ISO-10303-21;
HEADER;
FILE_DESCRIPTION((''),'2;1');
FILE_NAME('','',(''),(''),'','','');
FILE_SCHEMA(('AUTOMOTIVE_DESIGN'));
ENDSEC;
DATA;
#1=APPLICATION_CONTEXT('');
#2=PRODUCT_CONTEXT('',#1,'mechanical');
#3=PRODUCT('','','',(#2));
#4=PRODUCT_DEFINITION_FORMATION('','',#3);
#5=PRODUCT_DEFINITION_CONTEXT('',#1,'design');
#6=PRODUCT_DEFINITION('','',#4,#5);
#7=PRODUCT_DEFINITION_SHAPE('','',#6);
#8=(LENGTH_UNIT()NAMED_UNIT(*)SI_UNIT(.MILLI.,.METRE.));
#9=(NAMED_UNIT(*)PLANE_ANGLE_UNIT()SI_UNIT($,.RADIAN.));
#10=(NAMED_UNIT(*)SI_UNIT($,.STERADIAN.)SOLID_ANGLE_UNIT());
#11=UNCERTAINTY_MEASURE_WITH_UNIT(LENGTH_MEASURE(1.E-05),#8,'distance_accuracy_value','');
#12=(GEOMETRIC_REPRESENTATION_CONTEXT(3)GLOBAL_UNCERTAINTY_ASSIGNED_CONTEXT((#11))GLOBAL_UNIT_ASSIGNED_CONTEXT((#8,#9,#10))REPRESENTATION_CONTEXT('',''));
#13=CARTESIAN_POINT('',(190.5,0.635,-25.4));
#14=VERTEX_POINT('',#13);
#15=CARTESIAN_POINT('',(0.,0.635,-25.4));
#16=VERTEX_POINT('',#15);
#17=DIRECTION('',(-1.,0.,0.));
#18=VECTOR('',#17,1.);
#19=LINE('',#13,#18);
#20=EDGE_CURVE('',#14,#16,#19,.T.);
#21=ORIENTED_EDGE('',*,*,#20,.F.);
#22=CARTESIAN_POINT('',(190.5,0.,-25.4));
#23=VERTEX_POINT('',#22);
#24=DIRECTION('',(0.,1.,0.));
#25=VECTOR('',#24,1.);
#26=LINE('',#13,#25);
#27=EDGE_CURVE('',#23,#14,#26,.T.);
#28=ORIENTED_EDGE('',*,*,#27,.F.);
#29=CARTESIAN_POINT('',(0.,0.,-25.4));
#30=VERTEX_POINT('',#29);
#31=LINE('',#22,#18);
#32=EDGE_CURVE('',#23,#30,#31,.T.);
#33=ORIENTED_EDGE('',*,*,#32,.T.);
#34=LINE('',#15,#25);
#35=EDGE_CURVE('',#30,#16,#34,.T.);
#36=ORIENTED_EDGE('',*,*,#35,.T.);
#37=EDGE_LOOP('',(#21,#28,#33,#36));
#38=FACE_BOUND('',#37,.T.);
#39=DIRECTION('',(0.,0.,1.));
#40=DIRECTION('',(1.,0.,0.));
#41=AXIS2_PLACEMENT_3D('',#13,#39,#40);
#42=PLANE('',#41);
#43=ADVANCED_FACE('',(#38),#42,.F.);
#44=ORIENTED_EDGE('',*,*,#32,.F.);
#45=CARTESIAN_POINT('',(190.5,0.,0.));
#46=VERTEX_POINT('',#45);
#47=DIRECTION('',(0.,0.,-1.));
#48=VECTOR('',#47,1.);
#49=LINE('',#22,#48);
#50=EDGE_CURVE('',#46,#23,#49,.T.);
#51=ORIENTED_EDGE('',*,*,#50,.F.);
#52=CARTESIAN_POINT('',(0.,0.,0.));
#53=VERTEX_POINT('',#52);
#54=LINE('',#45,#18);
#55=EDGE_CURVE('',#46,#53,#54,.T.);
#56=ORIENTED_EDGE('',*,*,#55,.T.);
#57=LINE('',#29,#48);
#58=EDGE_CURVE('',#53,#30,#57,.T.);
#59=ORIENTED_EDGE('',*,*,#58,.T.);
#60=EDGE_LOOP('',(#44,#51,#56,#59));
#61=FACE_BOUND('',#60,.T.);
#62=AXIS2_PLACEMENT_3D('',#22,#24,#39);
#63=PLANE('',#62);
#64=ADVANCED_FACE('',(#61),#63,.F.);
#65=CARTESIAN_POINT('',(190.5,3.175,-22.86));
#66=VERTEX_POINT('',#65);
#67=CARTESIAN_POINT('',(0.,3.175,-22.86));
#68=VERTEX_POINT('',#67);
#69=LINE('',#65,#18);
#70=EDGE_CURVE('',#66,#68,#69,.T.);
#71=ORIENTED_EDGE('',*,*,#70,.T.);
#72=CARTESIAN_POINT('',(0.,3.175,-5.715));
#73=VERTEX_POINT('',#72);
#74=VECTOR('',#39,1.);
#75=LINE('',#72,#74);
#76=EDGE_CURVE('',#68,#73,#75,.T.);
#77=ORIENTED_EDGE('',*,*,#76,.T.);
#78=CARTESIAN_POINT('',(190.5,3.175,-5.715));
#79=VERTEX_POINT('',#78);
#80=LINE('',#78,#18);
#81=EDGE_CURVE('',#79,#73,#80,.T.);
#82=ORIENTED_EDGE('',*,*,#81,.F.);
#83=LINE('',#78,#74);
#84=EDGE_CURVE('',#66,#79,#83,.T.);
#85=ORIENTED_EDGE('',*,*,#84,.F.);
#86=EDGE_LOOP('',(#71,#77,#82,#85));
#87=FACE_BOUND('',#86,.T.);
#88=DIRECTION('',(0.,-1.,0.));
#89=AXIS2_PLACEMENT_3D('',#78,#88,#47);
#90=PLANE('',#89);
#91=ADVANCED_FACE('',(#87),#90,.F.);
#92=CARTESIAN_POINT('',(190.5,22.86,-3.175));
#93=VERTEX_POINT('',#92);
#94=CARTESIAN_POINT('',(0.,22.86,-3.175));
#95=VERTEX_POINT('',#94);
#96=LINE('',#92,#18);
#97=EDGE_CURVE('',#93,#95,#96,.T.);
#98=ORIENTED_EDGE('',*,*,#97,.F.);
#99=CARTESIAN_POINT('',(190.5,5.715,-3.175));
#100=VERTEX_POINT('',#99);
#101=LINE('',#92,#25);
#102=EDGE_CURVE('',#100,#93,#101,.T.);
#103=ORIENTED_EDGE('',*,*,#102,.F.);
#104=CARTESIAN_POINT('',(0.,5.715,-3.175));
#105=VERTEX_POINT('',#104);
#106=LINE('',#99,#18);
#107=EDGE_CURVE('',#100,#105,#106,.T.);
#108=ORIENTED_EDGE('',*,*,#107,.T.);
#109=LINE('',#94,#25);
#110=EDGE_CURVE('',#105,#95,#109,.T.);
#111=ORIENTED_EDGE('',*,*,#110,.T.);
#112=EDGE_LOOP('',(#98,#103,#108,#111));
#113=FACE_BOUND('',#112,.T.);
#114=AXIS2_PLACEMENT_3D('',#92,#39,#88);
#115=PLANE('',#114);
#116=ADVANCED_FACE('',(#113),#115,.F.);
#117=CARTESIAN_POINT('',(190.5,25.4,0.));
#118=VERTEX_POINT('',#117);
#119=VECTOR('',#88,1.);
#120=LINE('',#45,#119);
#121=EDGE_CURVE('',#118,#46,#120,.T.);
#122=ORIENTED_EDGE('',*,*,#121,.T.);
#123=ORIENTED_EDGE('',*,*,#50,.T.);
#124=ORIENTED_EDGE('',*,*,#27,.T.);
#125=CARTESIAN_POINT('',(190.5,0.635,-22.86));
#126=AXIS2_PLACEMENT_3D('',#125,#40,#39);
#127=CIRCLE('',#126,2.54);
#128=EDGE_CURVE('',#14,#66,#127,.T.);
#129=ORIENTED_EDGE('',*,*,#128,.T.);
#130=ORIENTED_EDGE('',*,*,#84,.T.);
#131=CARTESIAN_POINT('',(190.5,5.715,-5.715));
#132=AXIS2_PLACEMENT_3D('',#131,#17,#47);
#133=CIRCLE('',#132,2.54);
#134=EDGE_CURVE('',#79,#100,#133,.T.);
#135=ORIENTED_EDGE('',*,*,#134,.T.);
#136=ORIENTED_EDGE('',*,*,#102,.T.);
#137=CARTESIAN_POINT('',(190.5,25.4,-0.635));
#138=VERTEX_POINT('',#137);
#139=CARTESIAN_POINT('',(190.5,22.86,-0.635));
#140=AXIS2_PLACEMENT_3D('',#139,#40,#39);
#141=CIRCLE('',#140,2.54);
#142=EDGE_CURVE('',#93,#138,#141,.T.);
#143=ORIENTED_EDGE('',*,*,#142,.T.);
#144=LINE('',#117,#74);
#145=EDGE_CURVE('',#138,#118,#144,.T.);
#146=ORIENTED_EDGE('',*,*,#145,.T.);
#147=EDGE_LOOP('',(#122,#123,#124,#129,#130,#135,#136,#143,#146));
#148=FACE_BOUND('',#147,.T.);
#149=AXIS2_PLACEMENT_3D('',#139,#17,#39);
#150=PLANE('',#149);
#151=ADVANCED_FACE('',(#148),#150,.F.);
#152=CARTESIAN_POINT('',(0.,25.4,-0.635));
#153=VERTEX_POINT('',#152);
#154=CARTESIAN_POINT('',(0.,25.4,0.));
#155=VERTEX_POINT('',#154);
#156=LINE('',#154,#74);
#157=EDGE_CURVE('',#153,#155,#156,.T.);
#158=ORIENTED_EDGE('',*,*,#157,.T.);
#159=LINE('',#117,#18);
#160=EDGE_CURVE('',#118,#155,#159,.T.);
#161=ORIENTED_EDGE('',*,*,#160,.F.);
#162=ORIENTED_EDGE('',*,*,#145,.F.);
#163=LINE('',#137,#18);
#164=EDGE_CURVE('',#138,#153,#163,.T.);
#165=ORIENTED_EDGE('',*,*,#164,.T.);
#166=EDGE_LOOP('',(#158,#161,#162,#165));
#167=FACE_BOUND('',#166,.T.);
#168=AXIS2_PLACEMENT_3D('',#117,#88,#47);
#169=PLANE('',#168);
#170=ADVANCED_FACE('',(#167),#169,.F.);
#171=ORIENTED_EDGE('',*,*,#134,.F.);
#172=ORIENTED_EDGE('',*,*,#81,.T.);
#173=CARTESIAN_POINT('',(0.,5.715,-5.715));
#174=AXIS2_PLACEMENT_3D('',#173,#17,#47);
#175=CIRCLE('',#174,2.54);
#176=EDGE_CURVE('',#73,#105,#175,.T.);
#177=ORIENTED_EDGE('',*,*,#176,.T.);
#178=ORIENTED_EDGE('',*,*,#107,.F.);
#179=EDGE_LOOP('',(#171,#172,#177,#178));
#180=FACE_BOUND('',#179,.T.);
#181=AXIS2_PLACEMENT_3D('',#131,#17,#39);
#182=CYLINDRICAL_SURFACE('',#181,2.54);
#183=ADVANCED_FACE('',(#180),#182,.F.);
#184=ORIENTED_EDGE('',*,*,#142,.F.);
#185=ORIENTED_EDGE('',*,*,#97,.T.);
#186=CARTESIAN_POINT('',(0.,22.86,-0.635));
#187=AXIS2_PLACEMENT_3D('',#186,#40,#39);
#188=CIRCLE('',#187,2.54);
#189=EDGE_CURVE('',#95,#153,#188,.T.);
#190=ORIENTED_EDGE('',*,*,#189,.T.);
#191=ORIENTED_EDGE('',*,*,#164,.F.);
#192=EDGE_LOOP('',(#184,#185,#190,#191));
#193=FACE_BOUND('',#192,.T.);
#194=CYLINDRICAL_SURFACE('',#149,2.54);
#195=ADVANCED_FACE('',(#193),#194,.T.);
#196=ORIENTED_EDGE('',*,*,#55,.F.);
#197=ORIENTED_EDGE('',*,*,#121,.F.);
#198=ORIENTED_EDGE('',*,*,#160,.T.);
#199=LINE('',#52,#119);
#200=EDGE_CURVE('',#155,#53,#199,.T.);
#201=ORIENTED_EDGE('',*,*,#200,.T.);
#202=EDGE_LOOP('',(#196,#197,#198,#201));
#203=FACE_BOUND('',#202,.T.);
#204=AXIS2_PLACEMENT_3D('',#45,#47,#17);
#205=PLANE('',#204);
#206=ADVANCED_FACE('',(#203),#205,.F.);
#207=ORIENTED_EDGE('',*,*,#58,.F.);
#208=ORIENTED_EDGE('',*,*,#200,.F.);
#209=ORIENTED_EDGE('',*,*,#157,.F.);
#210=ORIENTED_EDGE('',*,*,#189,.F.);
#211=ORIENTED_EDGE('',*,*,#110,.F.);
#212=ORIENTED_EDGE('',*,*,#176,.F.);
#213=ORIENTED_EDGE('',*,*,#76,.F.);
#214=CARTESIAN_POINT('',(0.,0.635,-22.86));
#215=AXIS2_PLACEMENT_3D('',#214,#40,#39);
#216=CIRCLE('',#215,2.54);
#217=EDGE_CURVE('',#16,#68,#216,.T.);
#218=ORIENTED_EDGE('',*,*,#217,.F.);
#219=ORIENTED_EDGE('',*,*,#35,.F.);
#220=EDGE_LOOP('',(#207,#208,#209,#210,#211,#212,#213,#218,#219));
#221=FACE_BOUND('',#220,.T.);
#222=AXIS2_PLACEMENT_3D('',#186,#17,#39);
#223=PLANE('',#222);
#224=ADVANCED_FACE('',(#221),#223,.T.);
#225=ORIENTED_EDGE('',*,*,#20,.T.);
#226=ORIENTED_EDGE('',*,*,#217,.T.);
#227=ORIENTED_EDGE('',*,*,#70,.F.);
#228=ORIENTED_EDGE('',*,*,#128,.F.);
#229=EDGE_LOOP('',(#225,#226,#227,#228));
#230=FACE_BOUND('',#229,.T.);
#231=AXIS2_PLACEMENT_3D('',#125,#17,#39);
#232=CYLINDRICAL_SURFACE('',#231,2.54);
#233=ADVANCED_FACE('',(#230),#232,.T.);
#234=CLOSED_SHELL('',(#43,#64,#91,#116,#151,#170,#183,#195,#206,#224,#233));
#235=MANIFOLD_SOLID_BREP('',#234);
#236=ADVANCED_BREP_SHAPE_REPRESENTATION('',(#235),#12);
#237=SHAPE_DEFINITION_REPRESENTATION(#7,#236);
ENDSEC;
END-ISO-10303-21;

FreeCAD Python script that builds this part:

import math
import FreeCAD as App
import Part
import Sketcher

V = App.Vector
Q = App.Units.Quantity

doc = App.newDocument("Part")
params = doc.addObject("Spreadsheet::Sheet", "Params")
for row, (alias, value) in enumerate([
    ("sketch1_radius", "0.1 in"),
    ("sketch1_width", "1 in"),
    ("sketch1_width2", "0.025 in"),
    ("pad1_length", "7.5 in"),
], start=1):
    params.set(f"A{row}", alias)
    params.set(f"B{row}", "=" + value)
    params.setAlias(f"B{row}", alias)

body = doc.addObject("PartDesign::Body", "Body")

sketch1 = doc.addObject("Sketcher::SketchObject", "Sketch")
body.addObject(sketch1)
sketch1.AttachmentSupport = (doc.YZ_Plane, [""])
sketch1.MapMode = "FlatFace"
sketch1.addGeometry([
    Part.LineSegment(V(25.4, 0, 0), V(0, 0, 0)),
    Part.LineSegment(V(0, 0, 0), V(0, -25.4, 0)),
    Part.LineSegment(V(0, -25.4, 0), V(0.6, -25.4, 0)),
    Part.ArcOfCircle(Part.Circle(V(0.6, -22.9, 0), V(0, 0, 1), 2.5), math.radians(-90), math.radians(0)),
    Part.LineSegment(V(3.2, -22.9, 0), V(3.2, -5.7, 0)),
    Part.ArcOfCircle(Part.Circle(V(5.7, -5.7, 0), V(0, 0, 1), 2.5), math.radians(90), math.radians(180)),
    Part.LineSegment(V(5.7, -3.2, 0), V(22.9, -3.2, 0)),
    Part.ArcOfCircle(Part.Circle(V(22.9, -0.6, 0), V(0, 0, 1), 2.5), math.radians(-90), math.radians(0)),
    Part.LineSegment(V(25.4, -0.6, 0), V(25.4, 0, 0)),
], False)
sketch1.addConstraint([
    Sketcher.Constraint("Coincident", 0, 2, 1, 1),
    Sketcher.Constraint("Coincident", 1, 2, 2, 1),
    Sketcher.Constraint("Tangent", 2, 2, 3, 1),
    Sketcher.Constraint("Tangent", 3, 2, 4, 1),
    Sketcher.Constraint("Tangent", 4, 2, 5, 2),
    Sketcher.Constraint("Tangent", 5, 1, 6, 1),
    Sketcher.Constraint("Tangent", 6, 2, 7, 1),
    Sketcher.Constraint("Tangent", 7, 2, 8, 1),
    Sketcher.Constraint("Coincident", 8, 2, 0, 1),
    Sketcher.Constraint("Horizontal", 0),
    Sketcher.Constraint("Vertical", 1),
    Sketcher.Constraint("Horizontal", 2),
    Sketcher.Constraint("Vertical", 4),
    Sketcher.Constraint("Horizontal", 6),
    Sketcher.Constraint("Vertical", 8),
    Sketcher.Constraint("Coincident", 0, 2, -1, 1),
    Sketcher.Constraint("Equal", 3, 5),
    Sketcher.Constraint("Equal", 5, 7),
    Sketcher.Constraint("Equal", 0, 1),
    Sketcher.Constraint("Equal", 6, 4),
    Sketcher.Constraint("Radius", 3, Q("0.1 in")),
    Sketcher.Constraint("DistanceX", 0, 2, 0, 1, Q("1 in")),
    Sketcher.Constraint("DistanceX", 2, 1, 2, 2, Q("0.025 in")),
])
sketch1.setExpression("Constraints[20]", "Params.sketch1_radius")
sketch1.setExpression("Constraints[21]", "Params.sketch1_width")
sketch1.setExpression("Constraints[22]", "Params.sketch1_width2")
pad1 = doc.addObject("PartDesign::Pad", "Pad")
body.addObject(pad1)
pad1.Profile = sketch1
pad1.setExpression("Length", "Params.pad1_length")

doc.recompute()
